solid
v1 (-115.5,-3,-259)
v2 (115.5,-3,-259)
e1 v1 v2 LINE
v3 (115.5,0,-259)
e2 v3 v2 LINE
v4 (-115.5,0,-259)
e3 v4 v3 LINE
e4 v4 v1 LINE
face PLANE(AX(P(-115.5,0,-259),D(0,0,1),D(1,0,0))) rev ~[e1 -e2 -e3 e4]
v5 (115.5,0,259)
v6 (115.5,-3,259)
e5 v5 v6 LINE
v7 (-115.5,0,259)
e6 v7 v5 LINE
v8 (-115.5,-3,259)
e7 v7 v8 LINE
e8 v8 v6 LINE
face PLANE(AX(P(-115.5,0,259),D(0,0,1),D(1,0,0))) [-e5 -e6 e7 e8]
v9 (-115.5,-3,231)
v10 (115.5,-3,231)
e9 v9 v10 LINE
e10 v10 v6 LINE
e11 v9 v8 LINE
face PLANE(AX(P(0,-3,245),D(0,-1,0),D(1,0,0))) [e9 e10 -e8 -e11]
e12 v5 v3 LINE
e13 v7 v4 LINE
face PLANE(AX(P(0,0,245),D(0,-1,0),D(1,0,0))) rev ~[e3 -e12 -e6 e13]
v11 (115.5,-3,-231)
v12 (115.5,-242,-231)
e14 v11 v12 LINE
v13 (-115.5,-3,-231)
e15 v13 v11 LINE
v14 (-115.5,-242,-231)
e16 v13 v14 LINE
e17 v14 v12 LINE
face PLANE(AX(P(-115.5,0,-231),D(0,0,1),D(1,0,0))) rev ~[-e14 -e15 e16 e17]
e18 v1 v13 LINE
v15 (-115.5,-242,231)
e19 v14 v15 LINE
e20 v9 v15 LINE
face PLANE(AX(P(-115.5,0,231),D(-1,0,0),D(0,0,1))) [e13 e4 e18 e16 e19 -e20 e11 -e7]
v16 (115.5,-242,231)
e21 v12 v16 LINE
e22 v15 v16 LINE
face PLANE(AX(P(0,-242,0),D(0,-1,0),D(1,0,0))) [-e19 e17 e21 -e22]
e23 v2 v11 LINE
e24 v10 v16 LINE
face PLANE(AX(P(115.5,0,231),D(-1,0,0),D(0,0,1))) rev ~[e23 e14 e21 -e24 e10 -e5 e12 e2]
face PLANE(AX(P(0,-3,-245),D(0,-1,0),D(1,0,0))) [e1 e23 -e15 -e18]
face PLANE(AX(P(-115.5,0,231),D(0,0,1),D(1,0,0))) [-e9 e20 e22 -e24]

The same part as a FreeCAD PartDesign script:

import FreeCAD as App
import Part
import Sketcher

V = App.Vector
Q = App.Units.Quantity

doc = App.newDocument("Part")
body = doc.addObject("PartDesign::Body", "Body")

# Sketch on XZ plane
sketch1 = doc.addObject("Sketcher::SketchObject", "Sketch")
body.addObject(sketch1)
sketch1.AttachmentSupport = (doc.XZ_Plane, [""])
sketch1.MapMode = "FlatFace"
sketch1.addGeometry(Part.LineSegment(V(-116, 231, 0), V(-116, -231, 0)), False)
sketch1.addGeometry(Part.LineSegment(V(-116, -231, 0), V(116, -231, 0)), False)
sketch1.addGeometry(Part.LineSegment(V(116, -231, 0), V(116, 231, 0)), False)
sketch1.addGeometry(Part.LineSegment(V(116, 231, 0), V(-116, 231, 0)), False)
sketch1.addConstraint(Sketcher.Constraint("Coincident", 0, 2, 1, 1))
sketch1.addConstraint(Sketcher.Constraint("Coincident", 1, 2, 2, 1))
sketch1.addConstraint(Sketcher.Constraint("Coincident", 2, 2, 3, 1))
sketch1.addConstraint(Sketcher.Constraint("Coincident", 3, 2, 0, 1))
sketch1.addConstraint(Sketcher.Constraint("Vertical", 0))
sketch1.addConstraint(Sketcher.Constraint("Horizontal", 1))
sketch1.addConstraint(Sketcher.Constraint("Vertical", 2))
sketch1.addConstraint(Sketcher.Constraint("Horizontal", 3))
sketch1.addConstraint(Sketcher.Constraint("Symmetric", 0, 2, 2, 2, -1, 1))
sketch1.addConstraint(Sketcher.Constraint("DistanceX", 1, 1, 1, 2, Q("231 mm")))
sketch1.addConstraint(Sketcher.Constraint("DistanceY", 0, 2, 0, 1, Q("462 mm")))
pad1 = doc.addObject("PartDesign::Pad", "Pad")
body.addObject(pad1)
pad1.Profile = sketch1
pad1.Length = 242

# Sketch on XZ plane
sketch2 = doc.addObject("Sketcher::SketchObject", "Sketch001")
body.addObject(sketch2)
sketch2.AttachmentSupport = (doc.XZ_Plane, [""])
sketch2.MapMode = "FlatFace"
sketch2.addGeometry(Part.LineSegment(V(-116, 259, 0), V(-116, 231, 0)), False)
sketch2.addGeometry(Part.LineSegment(V(-116, 231, 0), V(116, 231, 0)), False)
sketch2.addGeometry(Part.LineSegment(V(116, 231, 0), V(116, 259, 0)), False)
sketch2.addGeometry(Part.LineSegment(V(116, 259, 0), V(-116, 259, 0)), False)
sketch2.addGeometry(Part.LineSegment(V(-116, -231, 0), V(-116, -259, 0)), False)
sketch2.addGeometry(Part.LineSegment(V(-116, -259, 0), V(116, -259, 0)), False)
sketch2.addGeometry(Part.LineSegment(V(116, -259, 0), V(116, -231, 0)), False)
sketch2.addGeometry(Part.LineSegment(V(116, -231, 0), V(-116, -231, 0)), False)
sketch2.addConstraint(Sketcher.Constraint("Coincident", 0, 2, 1, 1))
sketch2.addConstraint(Sketcher.Constraint("Coincident", 1, 2, 2, 1))
sketch2.addConstraint(Sketcher.Constraint("Coincident", 2, 2, 3, 1))
sketch2.addConstraint(Sketcher.Constraint("Coincident", 3, 2, 0, 1))
sketch2.addConstraint(Sketcher.Constraint("Coincident", 4, 2, 5, 1))
sketch2.addConstraint(Sketcher.Constraint("Coincident", 5, 2, 6, 1))
sketch2.addConstraint(Sketcher.Constraint("Coincident", 6, 2, 7, 1))
sketch2.addConstraint(Sketcher.Constraint("Coincident", 7, 2, 4, 1))
sketch2.addConstraint(Sketcher.Constraint("Vertical", 0))
sketch2.addConstraint(Sketcher.Constraint("Horizontal", 1))
sketch2.addConstraint(Sketcher.Constraint("Vertical", 2))
sketch2.addConstraint(Sketcher.Constraint("Horizontal", 3))
sketch2.addConstraint(Sketcher.Constraint("Vertical", 4))
sketch2.addConstraint(Sketcher.Constraint("Horizontal", 5))
sketch2.addConstraint(Sketcher.Constraint("Vertical", 6))
sketch2.addConstraint(Sketcher.Constraint("Horizontal", 7))
sketch2.addConstraint(Sketcher.Constraint("Symmetric", 2, 2, 4, 2, -1, 1))
sketch2.addConstraint(Sketcher.Constraint("Symmetric", 0, 2, 6, 2, -1, 1))
sketch2.addConstraint(Sketcher.Constraint("Vertical", 3, 2, 4, 2))
sketch2.addConstraint(Sketcher.Constraint("DistanceX", 1, 1, 1, 2, Q("231 mm")))
sketch2.addConstraint(Sketcher.Constraint("DistanceY", 0, 2, 0, 1, Q("28 mm")))
sketch2.addConstraint(Sketcher.Constraint("DistanceY", -1, 1, 0, 2, Q("231 mm")))
pad2 = doc.addObject("PartDesign::Pad", "Pad001")
body.addObject(pad2)
pad2.Profile = sketch2
pad2.Length = 3

doc.recompute()
